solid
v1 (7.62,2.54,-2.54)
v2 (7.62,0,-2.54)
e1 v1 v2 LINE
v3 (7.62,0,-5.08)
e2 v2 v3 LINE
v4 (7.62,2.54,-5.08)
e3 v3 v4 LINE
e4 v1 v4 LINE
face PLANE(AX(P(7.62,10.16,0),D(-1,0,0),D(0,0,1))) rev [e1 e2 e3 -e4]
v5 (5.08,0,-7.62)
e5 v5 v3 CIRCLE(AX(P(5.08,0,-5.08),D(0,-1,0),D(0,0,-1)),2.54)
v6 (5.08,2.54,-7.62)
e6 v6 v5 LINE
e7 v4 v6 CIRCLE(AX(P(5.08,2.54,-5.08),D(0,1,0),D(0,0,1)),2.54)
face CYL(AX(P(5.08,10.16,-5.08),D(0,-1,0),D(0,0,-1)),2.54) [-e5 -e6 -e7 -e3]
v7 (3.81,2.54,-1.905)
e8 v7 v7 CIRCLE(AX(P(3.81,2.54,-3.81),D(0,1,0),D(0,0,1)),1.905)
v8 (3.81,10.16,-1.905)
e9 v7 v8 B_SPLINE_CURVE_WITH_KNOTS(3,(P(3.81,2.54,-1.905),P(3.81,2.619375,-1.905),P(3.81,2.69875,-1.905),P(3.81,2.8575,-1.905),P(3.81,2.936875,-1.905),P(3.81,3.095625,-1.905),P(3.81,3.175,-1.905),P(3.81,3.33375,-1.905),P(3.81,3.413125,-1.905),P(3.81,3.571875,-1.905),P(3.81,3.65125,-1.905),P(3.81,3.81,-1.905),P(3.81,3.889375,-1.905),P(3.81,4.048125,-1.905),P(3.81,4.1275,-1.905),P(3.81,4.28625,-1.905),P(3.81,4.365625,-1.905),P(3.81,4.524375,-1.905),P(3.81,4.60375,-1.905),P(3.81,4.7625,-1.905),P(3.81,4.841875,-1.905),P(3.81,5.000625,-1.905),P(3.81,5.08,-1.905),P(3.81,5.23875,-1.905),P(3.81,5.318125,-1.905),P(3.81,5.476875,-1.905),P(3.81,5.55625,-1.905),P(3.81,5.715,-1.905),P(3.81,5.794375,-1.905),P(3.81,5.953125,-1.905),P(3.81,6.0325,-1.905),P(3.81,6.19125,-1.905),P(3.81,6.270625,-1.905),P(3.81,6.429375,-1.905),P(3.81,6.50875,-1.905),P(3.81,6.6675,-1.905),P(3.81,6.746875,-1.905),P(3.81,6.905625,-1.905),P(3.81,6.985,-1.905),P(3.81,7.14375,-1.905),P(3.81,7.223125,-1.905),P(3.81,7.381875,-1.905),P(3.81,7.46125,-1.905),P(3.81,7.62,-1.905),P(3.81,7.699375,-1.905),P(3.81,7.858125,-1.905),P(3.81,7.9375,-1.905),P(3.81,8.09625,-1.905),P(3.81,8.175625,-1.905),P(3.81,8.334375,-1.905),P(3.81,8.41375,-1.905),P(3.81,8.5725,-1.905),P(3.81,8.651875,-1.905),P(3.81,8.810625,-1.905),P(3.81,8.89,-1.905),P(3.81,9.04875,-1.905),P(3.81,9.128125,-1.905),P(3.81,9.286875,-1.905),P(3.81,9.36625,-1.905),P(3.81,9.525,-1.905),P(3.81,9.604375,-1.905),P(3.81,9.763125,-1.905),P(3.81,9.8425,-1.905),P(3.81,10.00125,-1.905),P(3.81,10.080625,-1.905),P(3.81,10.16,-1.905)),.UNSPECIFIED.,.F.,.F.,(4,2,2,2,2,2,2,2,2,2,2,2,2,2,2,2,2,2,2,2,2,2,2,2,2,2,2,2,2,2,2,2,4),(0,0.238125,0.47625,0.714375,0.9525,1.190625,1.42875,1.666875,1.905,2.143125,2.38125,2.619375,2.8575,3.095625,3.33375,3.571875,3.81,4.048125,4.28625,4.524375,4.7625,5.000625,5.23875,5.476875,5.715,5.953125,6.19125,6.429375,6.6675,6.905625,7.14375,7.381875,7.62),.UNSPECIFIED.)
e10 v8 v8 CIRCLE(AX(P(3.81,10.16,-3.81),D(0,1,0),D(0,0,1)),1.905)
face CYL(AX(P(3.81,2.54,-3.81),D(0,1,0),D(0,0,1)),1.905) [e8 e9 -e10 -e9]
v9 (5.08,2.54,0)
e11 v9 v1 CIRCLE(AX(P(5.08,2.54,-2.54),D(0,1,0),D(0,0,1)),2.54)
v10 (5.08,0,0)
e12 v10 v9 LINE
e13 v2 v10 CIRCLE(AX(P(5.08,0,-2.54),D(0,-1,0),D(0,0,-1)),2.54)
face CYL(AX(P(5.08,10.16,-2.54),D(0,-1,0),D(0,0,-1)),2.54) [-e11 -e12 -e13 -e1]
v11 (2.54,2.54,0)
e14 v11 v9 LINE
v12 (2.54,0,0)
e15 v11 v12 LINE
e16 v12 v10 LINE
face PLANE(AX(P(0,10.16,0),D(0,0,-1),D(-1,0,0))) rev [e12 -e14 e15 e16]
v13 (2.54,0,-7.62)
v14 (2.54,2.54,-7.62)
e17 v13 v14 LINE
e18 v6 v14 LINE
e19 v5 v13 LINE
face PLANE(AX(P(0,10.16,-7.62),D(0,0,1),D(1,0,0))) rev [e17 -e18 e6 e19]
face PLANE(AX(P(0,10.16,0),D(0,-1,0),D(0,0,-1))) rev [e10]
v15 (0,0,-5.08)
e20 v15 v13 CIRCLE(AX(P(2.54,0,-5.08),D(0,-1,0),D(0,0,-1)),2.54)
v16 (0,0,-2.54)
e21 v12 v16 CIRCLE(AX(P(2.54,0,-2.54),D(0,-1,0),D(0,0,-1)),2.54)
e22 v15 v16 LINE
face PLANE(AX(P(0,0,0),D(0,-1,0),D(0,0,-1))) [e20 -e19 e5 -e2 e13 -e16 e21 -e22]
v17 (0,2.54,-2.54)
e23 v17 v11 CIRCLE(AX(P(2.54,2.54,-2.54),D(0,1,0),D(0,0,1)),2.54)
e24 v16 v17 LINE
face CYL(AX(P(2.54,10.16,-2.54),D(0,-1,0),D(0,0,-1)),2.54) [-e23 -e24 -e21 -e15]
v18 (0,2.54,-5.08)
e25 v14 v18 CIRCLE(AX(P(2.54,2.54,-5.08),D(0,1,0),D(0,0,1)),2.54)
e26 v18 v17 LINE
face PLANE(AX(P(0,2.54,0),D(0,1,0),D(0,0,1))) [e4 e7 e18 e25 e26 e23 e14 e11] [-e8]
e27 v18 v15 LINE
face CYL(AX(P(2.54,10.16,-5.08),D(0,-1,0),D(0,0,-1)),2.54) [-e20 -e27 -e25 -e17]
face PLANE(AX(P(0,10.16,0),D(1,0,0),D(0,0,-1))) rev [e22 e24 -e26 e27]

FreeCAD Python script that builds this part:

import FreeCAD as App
import Part
import Sketcher
from FreeCAD import Vector
Q = App.Units.Quantity


def edges_at(feature, points):
    """Names of the edges that pass closest to the given points."""
    edges = feature.Shape.Edges
    near = lambda p: min(range(len(edges)), key=lambda i: edges[i].distToShape(Part.Vertex(*p))[0])
    return sorted({f"Edge{near(p) + 1}" for p in points})

doc = App.newDocument("Part")
body = doc.addObject("PartDesign::Body", "Body")

sketch1 = body.newObject("Sketcher::SketchObject", "Sketch")
sketch1.AttachmentSupport = (doc.getObject("XZ_Plane"), [""])
sketch1.MapMode = "FlatFace"
sketch1.addGeometry(Part.LineSegment(Vector(0, -7.62, 0), Vector(0, 0, 0)), False)
sketch1.addGeometry(Part.LineSegment(Vector(0, 0, 0), Vector(7.62, 0, 0)), False)
sketch1.addGeometry(Part.LineSegment(Vector(7.62, 0, 0), Vector(7.62, -7.62, 0)), False)
sketch1.addGeometry(Part.LineSegment(Vector(7.62, -7.62, 0), Vector(0, -7.62, 0)), False)
sketch1.addConstraint(Sketcher.Constraint("Coincident", 0, 2, 1, 1))
sketch1.addConstraint(Sketcher.Constraint("Coincident", 1, 2, 2, 1))
sketch1.addConstraint(Sketcher.Constraint("Coincident", 2, 2, 3, 1))
sketch1.addConstraint(Sketcher.Constraint("Coincident", 3, 2, 0, 1))
sketch1.addConstraint(Sketcher.Constraint("Vertical", 0))
sketch1.addConstraint(Sketcher.Constraint("Horizontal", 1))
sketch1.addConstraint(Sketcher.Constraint("Vertical", 2))
sketch1.addConstraint(Sketcher.Constraint("Horizontal", 3))
sketch1.addConstraint(Sketcher.Constraint("Coincident", 0, 2, -1, 1))
sketch1.addConstraint(Sketcher.Constraint("Equal", 3, 0))
sketch1.addConstraint(Sketcher.Constraint("DistanceX", 1, 1, 1, 2, Q("0.3 in")))
pad1 = body.newObject("PartDesign::Pad", "Pad")
pad1.Profile = sketch1
pad1.Length = Q("0.4 in")
pad1.Reversed = True

sketch2 = body.newObject("Sketcher::SketchObject", "Sketch001")
sketch2.AttachmentSupport = (doc.getObject("XZ_Plane"), [""])
sketch2.MapMode = "FlatFace"
sketch2.AttachmentOffset = App.Placement(Vector(0, 0, -0.4 * 25.4), App.Rotation())
sketch2.addGeometry(Part.LineSegment(Vector(0, -7.62, 0), Vector(0, 0, 0)), False)
sketch2.addGeometry(Part.LineSegment(Vector(0, 0, 0), Vector(7.62, 0, 0)), False)
sketch2.addGeometry(Part.LineSegment(Vector(7.62, 0, 0), Vector(7.62, -7.62, 0)), False)
sketch2.addGeometry(Part.LineSegment(Vector(7.62, -7.62, 0), Vector(0, -7.62, 0)), False)
sketch2.addGeometry(Part.Circle(Vector(3.81, -3.81, 0), Vector(0, 0, 1), 1.905), False)
sketch2.addConstraint(Sketcher.Constraint("Coincident", 0, 2, 1, 1))
sketch2.addConstraint(Sketcher.Constraint("Coincident", 1, 2, 2, 1))
sketch2.addConstraint(Sketcher.Constraint("Coincident", 2, 2, 3, 1))
sketch2.addConstraint(Sketcher.Constraint("Coincident", 3, 2, 0, 1))
sketch2.addConstraint(Sketcher.Constraint("Vertical", 0))
sketch2.addConstraint(Sketcher.Constraint("Horizontal", 1))
sketch2.addConstraint(Sketcher.Constraint("Vertical", 2))
sketch2.addConstraint(Sketcher.Constraint("Horizontal", 3))
sketch2.addConstraint(Sketcher.Constraint("Coincident", 0, 2, -1, 1))
sketch2.addConstraint(Sketcher.Constraint("Equal", 3, 0))
sketch2.addConstraint(Sketcher.Constraint("Diameter", 4, Q("0.15 in")))
sketch2.addConstraint(Sketcher.Constraint("DistanceX", 1, 1, 1, 2, Q("0.3 in")))
sketch2.addConstraint(Sketcher.Constraint("DistanceX", -1, 1, 4, 3, Q("0.15 in")))
sketch2.addConstraint(Sketcher.Constraint("DistanceY", 4, 3, -1, 1, Q("0.15 in")))
pocket1 = body.newObject("PartDesign::Pocket", "Pocket")
pocket1.Profile = sketch2
pocket1.Length = Q("0.3 in")
pocket1.Reversed = True
doc.recompute()

fillet = body.newObject("PartDesign::Fillet", "Fillet")
fillet.Base = (pocket1, edges_at(pocket1, [(7.62, 1.27, -7.62)]))
fillet.Radius = Q("0.1 in")
doc.recompute()

fillet2 = body.newObject("PartDesign::Fillet", "Fillet001")
fillet2.Base = (fillet, edges_at(fillet, [(0, 1.27, -7.62)]))
fillet2.Radius = Q("0.1 in")
doc.recompute()

fillet3 = body.newObject("PartDesign::Fillet", "Fillet002")
fillet3.Base = (fillet2, edges_at(fillet2, [(7.62, 1.27, 0)]))
fillet3.Radius = Q("0.1 in")
doc.recompute()

fillet4 = body.newObject("PartDesign::Fillet", "Fillet003")
fillet4.Base = (fillet3, edges_at(fillet3, [(0, 1.27, 0)]))
fillet4.Radius = Q("0.1 in")

doc.recompute()
